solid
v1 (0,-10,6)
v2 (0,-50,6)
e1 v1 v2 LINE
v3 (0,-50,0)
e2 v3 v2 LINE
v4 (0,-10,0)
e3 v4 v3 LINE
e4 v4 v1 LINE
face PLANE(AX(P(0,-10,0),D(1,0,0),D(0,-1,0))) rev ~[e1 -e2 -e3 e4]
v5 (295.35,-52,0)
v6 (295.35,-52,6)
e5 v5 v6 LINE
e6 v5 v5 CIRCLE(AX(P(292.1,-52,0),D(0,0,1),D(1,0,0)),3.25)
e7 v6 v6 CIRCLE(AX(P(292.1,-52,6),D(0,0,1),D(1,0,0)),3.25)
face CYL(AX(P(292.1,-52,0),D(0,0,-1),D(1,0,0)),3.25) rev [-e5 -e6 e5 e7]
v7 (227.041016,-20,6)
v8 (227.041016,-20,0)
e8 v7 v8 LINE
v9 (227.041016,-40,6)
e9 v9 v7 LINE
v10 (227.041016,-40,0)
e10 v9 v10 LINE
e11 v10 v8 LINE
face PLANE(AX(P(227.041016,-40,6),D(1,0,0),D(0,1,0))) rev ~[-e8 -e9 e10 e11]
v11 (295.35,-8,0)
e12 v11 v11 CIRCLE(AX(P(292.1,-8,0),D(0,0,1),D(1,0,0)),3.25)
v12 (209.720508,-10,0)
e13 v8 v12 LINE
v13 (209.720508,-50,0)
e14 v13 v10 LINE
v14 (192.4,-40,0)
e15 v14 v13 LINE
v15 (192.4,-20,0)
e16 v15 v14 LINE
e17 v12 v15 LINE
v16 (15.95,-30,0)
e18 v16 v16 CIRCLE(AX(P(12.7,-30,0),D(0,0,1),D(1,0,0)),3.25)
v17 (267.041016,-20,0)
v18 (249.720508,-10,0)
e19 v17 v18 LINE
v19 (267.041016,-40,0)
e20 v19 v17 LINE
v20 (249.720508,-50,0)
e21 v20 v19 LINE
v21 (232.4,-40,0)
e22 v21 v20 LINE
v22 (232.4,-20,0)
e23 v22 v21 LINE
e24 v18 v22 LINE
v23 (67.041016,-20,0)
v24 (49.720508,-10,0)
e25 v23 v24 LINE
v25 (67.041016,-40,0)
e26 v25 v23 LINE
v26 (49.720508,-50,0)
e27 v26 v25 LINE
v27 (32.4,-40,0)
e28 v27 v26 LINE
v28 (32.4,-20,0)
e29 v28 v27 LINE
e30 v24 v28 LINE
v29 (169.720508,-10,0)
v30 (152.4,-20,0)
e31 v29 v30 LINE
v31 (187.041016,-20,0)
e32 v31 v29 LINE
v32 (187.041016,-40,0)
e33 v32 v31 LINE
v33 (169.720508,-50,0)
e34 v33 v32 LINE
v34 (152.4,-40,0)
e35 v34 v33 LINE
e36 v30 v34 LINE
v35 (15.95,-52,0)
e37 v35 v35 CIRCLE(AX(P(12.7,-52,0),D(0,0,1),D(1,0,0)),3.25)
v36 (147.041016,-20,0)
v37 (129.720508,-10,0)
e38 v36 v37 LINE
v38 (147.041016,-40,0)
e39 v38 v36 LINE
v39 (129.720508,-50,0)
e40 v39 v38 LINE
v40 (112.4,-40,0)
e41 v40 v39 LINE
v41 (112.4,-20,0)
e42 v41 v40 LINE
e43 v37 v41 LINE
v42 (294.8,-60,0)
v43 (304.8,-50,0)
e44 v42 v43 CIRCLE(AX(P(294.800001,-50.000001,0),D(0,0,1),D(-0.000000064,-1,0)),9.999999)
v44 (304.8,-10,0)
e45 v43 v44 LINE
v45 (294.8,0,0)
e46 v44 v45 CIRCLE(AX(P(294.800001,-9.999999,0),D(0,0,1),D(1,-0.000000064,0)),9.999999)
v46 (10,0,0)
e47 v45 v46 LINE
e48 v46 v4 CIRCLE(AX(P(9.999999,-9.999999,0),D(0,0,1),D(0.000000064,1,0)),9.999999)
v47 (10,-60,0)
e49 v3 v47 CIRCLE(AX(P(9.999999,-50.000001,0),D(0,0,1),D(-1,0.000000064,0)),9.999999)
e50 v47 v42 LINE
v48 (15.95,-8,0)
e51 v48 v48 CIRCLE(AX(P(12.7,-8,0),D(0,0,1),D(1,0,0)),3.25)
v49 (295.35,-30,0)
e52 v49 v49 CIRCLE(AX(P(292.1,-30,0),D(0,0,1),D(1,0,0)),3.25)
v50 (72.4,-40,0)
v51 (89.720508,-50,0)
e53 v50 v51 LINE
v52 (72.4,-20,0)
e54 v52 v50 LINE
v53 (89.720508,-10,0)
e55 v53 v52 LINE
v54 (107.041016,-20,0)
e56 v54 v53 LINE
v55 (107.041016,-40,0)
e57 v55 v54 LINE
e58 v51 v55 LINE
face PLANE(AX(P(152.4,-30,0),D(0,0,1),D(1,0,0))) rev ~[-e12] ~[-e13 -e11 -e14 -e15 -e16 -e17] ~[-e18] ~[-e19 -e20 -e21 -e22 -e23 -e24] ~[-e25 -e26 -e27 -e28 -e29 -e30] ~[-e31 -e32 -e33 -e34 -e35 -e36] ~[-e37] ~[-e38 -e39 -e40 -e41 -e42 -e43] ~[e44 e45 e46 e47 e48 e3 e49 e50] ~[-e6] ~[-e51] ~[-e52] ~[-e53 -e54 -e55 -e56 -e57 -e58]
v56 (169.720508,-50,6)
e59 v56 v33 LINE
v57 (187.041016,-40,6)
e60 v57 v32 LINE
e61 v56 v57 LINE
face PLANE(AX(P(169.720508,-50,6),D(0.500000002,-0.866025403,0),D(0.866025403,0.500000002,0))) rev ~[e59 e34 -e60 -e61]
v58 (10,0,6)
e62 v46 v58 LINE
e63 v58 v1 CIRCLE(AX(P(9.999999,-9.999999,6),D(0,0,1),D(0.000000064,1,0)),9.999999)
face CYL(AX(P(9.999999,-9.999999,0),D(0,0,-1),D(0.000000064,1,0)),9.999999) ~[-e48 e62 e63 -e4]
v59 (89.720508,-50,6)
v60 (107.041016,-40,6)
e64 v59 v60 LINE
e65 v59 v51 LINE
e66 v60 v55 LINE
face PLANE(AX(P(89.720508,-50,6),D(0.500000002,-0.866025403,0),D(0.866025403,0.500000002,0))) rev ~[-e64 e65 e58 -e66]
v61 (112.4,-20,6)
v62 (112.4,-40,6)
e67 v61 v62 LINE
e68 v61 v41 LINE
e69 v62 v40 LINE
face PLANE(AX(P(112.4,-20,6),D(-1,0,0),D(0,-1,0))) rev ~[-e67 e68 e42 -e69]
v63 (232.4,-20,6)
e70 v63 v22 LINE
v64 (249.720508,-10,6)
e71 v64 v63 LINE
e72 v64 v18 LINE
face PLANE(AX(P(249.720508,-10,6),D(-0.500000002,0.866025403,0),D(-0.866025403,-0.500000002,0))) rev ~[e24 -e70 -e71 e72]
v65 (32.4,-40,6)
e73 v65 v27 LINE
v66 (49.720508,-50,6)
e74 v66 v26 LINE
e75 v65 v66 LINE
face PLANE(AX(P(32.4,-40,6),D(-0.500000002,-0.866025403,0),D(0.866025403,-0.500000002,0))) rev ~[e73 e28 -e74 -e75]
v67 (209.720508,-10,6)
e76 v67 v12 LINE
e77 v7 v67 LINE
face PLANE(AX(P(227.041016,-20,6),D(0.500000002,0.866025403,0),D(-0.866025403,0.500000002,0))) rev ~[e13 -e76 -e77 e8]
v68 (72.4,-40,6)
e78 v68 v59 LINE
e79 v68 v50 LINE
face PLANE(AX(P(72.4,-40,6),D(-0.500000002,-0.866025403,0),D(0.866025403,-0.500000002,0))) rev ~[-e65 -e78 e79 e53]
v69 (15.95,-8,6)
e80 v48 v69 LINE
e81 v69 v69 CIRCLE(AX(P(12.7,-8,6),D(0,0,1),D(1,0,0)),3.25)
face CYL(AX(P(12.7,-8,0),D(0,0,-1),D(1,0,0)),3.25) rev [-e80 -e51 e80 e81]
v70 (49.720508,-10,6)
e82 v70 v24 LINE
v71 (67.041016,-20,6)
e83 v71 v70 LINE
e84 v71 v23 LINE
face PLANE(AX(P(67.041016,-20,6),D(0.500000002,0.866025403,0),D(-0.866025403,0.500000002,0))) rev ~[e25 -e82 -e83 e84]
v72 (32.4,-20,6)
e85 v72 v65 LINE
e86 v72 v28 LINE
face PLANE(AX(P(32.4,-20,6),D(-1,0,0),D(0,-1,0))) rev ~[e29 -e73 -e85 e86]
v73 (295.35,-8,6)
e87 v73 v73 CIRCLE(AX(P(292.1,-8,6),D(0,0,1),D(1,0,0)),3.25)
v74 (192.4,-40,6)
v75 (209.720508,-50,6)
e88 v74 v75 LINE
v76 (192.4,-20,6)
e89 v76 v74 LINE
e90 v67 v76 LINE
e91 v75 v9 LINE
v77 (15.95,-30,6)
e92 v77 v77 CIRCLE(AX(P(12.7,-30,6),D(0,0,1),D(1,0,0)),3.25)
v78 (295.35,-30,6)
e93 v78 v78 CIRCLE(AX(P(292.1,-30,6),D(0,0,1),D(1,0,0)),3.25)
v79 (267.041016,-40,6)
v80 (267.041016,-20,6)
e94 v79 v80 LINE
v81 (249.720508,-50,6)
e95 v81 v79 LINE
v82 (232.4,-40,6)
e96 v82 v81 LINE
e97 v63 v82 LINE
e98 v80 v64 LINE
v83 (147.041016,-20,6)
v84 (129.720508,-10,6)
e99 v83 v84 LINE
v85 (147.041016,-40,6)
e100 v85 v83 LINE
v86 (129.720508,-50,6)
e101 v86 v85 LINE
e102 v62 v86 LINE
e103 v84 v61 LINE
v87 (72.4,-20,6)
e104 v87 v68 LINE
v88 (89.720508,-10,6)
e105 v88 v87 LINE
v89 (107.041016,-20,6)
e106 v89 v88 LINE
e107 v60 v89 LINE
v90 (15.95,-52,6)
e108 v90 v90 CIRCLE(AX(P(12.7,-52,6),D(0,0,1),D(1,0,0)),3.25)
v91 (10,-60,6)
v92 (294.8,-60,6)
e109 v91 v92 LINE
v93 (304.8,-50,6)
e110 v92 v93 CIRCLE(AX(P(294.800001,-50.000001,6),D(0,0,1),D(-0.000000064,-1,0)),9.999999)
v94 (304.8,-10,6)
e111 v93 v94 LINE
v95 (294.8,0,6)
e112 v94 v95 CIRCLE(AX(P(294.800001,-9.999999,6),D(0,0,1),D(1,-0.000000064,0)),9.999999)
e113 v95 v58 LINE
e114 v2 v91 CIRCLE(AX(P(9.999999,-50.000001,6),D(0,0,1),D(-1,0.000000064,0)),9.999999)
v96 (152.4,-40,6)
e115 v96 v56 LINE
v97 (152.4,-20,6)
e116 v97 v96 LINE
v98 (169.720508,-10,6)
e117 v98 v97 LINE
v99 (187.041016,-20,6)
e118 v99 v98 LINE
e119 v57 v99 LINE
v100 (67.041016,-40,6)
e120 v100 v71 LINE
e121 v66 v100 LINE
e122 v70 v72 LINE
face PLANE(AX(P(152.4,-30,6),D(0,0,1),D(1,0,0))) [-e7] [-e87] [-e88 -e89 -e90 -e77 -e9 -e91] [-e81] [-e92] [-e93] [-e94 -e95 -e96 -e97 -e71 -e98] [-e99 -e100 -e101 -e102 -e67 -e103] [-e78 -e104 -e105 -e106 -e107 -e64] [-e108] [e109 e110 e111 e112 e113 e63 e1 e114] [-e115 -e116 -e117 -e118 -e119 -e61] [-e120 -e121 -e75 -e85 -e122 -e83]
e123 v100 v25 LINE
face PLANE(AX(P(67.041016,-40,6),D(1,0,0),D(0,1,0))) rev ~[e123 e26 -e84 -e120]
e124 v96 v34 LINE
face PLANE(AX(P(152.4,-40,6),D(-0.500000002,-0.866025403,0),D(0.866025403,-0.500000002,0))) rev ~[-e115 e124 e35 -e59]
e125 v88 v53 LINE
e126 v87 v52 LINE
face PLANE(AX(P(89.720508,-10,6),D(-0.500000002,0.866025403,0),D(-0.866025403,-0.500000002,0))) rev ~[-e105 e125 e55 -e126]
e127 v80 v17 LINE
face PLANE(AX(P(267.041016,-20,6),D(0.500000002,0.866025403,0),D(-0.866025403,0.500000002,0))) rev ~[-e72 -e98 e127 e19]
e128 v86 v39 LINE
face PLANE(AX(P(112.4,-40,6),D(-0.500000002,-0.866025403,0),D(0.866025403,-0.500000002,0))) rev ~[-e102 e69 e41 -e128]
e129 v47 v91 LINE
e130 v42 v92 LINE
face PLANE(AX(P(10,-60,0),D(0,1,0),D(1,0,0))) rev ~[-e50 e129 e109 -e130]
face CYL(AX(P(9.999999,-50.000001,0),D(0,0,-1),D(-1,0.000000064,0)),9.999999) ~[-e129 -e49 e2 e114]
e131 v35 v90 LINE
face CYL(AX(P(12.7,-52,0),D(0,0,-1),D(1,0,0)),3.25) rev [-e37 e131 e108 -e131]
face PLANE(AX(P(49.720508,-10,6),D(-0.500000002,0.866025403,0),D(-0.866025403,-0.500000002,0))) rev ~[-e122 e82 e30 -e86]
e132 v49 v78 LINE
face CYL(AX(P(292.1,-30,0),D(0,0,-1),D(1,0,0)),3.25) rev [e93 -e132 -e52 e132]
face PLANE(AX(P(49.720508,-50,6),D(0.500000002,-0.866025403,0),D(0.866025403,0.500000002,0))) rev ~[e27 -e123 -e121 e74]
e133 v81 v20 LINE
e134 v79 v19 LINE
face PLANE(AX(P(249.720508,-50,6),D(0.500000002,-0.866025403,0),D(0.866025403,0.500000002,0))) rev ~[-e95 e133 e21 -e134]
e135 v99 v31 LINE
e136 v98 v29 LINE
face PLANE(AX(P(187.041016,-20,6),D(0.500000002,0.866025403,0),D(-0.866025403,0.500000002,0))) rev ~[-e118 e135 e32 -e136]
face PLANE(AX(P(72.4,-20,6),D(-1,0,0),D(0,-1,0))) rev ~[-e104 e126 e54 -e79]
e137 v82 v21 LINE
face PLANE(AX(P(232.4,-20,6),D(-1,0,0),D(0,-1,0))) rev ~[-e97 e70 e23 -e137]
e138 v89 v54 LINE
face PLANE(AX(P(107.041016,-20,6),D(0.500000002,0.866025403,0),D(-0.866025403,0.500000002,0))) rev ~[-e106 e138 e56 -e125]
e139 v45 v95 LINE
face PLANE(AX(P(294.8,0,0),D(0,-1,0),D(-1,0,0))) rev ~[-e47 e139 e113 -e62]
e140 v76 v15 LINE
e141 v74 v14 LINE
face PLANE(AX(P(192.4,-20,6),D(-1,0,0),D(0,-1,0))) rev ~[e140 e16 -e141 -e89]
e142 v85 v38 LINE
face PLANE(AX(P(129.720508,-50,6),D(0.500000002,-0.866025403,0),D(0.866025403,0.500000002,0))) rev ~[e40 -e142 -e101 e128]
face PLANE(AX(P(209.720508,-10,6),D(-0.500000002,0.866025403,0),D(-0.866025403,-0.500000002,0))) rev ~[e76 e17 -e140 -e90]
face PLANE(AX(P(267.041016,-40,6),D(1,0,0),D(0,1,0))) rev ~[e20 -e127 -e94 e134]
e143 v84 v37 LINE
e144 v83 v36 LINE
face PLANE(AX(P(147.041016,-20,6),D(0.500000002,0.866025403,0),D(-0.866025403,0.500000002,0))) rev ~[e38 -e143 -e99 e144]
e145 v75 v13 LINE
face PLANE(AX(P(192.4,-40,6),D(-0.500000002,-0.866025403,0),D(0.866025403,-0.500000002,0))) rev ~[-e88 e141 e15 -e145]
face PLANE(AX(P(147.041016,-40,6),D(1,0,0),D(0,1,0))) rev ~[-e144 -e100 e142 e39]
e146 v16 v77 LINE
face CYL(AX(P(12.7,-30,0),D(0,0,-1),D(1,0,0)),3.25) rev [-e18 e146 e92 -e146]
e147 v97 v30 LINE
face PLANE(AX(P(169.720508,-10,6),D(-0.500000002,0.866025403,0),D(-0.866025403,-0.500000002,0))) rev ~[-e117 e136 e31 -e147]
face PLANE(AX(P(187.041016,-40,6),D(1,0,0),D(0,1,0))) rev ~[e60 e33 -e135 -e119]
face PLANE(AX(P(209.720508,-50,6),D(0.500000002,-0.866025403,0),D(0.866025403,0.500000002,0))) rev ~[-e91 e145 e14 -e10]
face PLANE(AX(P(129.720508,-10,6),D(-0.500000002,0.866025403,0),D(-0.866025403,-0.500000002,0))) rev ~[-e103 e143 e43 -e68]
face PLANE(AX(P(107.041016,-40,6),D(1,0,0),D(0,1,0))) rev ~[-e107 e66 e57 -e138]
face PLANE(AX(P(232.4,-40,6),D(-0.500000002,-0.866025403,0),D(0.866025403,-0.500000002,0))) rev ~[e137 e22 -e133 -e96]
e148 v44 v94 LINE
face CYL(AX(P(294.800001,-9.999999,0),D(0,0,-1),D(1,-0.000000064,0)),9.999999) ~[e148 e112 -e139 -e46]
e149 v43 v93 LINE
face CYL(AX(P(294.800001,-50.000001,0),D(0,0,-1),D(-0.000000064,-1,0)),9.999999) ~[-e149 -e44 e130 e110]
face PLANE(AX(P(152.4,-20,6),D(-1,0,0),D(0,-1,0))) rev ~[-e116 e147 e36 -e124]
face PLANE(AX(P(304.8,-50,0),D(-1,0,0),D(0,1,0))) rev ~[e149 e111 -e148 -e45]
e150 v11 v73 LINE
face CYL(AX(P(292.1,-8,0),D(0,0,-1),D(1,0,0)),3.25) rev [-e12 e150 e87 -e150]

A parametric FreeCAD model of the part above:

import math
import FreeCAD as App
import Part
import Sketcher
from FreeCAD import Vector
Q = App.Units.Quantity

doc = App.newDocument("Part")
body = doc.addObject("PartDesign::Body", "Body")

sketch1 = body.newObject("Sketcher::SketchObject", "Sketch")
sketch1.AttachmentSupport = (doc.getObject("XY_Plane"), [""])
sketch1.MapMode = "FlatFace"
sketch1.addGeometry([
    Part.LineSegment(Vector(0, -10, 0), Vector(0, -50, 0)),
    Part.ArcOfCircle(Part.Circle(Vector(10, -50, 0), Vector(0, 0, 1), 10), math.radians(180), math.radians(270)),
    Part.LineSegment(Vector(10, -60, 0), Vector(294.8, -60, 0)),
    Part.ArcOfCircle(Part.Circle(Vector(294.8, -50, 0), Vector(0, 0, 1), 10), math.radians(-90), math.radians(0)),
    Part.LineSegment(Vector(304.8, -50, 0), Vector(304.8, -10, 0)),
    Part.ArcOfCircle(Part.Circle(Vector(294.8, -10, 0), Vector(0, 0, 1), 10), math.radians(0), math.radians(90)),
    Part.LineSegment(Vector(294.8, 0, 0), Vector(10, 0, 0)),
    Part.ArcOfCircle(Part.Circle(Vector(10, -10, 0), Vector(0, 0, 1), 10), math.radians(90), math.radians(180)),
    Part.Circle(Vector(12.7, -52, 0), Vector(0, 0, 1), 3.2),
    Part.Circle(Vector(292.1, -52, 0), Vector(0, 0, 1), 3.2),
    Part.Circle(Vector(12.7, -30, 0), Vector(0, 0, 1), 3.2),
    Part.Circle(Vector(12.7, -8, 0), Vector(0, 0, 1), 3.2),
    Part.Circle(Vector(292.1, -30, 0), Vector(0, 0, 1), 3.2),
    Part.Circle(Vector(292.1, -8, 0), Vector(0, 0, 1), 3.2),
], False)
sketch1.addConstraint([
    Sketcher.Constraint("Tangent", 0, 2, 1, 1),
    Sketcher.Constraint("Tangent", 1, 2, 2, 1),
    Sketcher.Constraint("Tangent", 2, 2, 3, 1),
    Sketcher.Constraint("Tangent", 3, 2, 4, 1),
    Sketcher.Constraint("Tangent", 4, 2, 5, 1),
    Sketcher.Constraint("Tangent", 5, 2, 6, 1),
    Sketcher.Constraint("Tangent", 6, 2, 7, 1),
    Sketcher.Constraint("Tangent", 7, 2, 0, 1),
    Sketcher.Constraint("Vertical", 0),
    Sketcher.Constraint("Horizontal", 2),
    Sketcher.Constraint("Vertical", 4),
    Sketcher.Constraint("Horizontal", 6),
    Sketcher.Constraint("Equal", 1, 3),
    Sketcher.Constraint("Equal", 3, 5),
    Sketcher.Constraint("Equal", 5, 7),
    Sketcher.Constraint("Equal", 8, 9),
    Sketcher.Constraint("Equal", 9, 10),
    Sketcher.Constraint("Equal", 10, 11),
    Sketcher.Constraint("Equal", 11, 12),
    Sketcher.Constraint("Equal", 12, 13),
    Sketcher.Constraint("PointOnObject", 0, 2, -2),
    Sketcher.Constraint("PointOnObject", 5, 2, -1),
    Sketcher.Constraint("Horizontal", 8, 3, 9, 3),
    Sketcher.Constraint("Horizontal", 10, 3, 12, 3),
    Sketcher.Constraint("Horizontal", 11, 3, 13, 3),
    Sketcher.Constraint("Vertical", 8, 3, 10, 3),
    Sketcher.Constraint("Vertical", 10, 3, 11, 3),
    Sketcher.Constraint("Vertical", 9, 3, 12, 3),
    Sketcher.Constraint("Vertical", 12, 3, 13, 3),
    Sketcher.Constraint("Radius", 1, Q("9.999999 mm")),
    Sketcher.Constraint("Diameter", 8, Q("6.5 mm")),
    Sketcher.Constraint("DistanceY", 0, 2, 0, 1, Q("40 mm")),
    Sketcher.Constraint("DistanceX", 2, 1, 2, 2, Q("284.8 mm")),
    Sketcher.Constraint("DistanceY", 8, 3, -1, 1, Q("52 mm")),
    Sketcher.Constraint("DistanceY", 10, 3, -1, 1, Q("30 mm")),
    Sketcher.Constraint("DistanceY", 11, 3, -1, 1, Q("8 mm")),
    Sketcher.Constraint("DistanceX", -1, 1, 8, 3, Q("12.7 mm")),
    Sketcher.Constraint("DistanceX", -1, 1, 9, 3, Q("292.1 mm")),
])
pad1 = body.newObject("PartDesign::Pad", "Pad")
pad1.Profile = sketch1
pad1.Length = 6

sketch2 = body.newObject("Sketcher::SketchObject", "Sketch001")
sketch2.AttachmentSupport = (doc.getObject("XY_Plane"), [""])
sketch2.MapMode = "FlatFace"
sketch2.AttachmentOffset = App.Placement(Vector(0, 0, 6), App.Rotation())
sketch2.addGeometry([
    Part.LineSegment(Vector(187, -20, 0), Vector(170, -10, 0)),
    Part.LineSegment(Vector(170, -10, 0), Vector(152, -20, 0)),
    Part.LineSegment(Vector(152, -20, 0), Vector(152, -40, 0)),
    Part.LineSegment(Vector(152, -40, 0), Vector(170, -50, 0)),
    Part.LineSegment(Vector(170, -50, 0), Vector(187, -40, 0)),
    Part.LineSegment(Vector(187, -40, 0), Vector(187, -20, 0)),
    Part.LineSegment(Vector(227, -20, 0), Vector(210, -10, 0)),
    Part.LineSegment(Vector(210, -10, 0), Vector(192, -20, 0)),
    Part.LineSegment(Vector(192, -20, 0), Vector(192, -40, 0)),
    Part.LineSegment(Vector(192, -40, 0), Vector(210, -50, 0)),
    Part.LineSegment(Vector(210, -50, 0), Vector(227, -40, 0)),
    Part.LineSegment(Vector(227, -40, 0), Vector(227, -20, 0)),
    Part.LineSegment(Vector(267, -20, 0), Vector(250, -10, 0)),
    Part.LineSegment(Vector(250, -10, 0), Vector(232, -20, 0)),
    Part.LineSegment(Vector(232, -20, 0), Vector(232, -40, 0)),
    Part.LineSegment(Vector(232, -40, 0), Vector(250, -50, 0)),
    Part.LineSegment(Vector(250, -50, 0), Vector(267, -40, 0)),
    Part.LineSegment(Vector(267, -40, 0), Vector(267, -20, 0)),
    Part.LineSegment(Vector(67, -20, 0), Vector(50, -10, 0)),
    Part.LineSegment(Vector(50, -10, 0), Vector(32, -20, 0)),
    Part.LineSegment(Vector(32, -20, 0), Vector(32, -40, 0)),
    Part.LineSegment(Vector(32, -40, 0), Vector(50, -50, 0)),
    Part.LineSegment(Vector(50, -50, 0), Vector(67, -40, 0)),
    Part.LineSegment(Vector(67, -40, 0), Vector(67, -20, 0)),
    Part.LineSegment(Vector(107, -20, 0), Vector(90, -10, 0)),
    Part.LineSegment(Vector(90, -10, 0), Vector(72, -20, 0)),
    Part.LineSegment(Vector(72, -20, 0), Vector(72, -40, 0)),
    Part.LineSegment(Vector(72, -40, 0), Vector(90, -50, 0)),
    Part.LineSegment(Vector(90, -50, 0), Vector(107, -40, 0)),
    Part.LineSegment(Vector(107, -40, 0), Vector(107, -20, 0)),
    Part.LineSegment(Vector(147, -20, 0), Vector(130, -10, 0)),
    Part.LineSegment(Vector(130, -10, 0), Vector(112, -20, 0)),
    Part.LineSegment(Vector(112, -20, 0), Vector(112, -40, 0)),
    Part.LineSegment(Vector(112, -40, 0), Vector(130, -50, 0)),
    Part.LineSegment(Vector(130, -50, 0), Vector(147, -40, 0)),
    Part.LineSegment(Vector(147, -40, 0), Vector(147, -20, 0)),
], False)
sketch2.addConstraint([
    Sketcher.Constraint("Coincident", 0, 2, 1, 1),
    Sketcher.Constraint("Coincident", 1, 2, 2, 1),
    Sketcher.Constraint("Coincident", 2, 2, 3, 1),
    Sketcher.Constraint("Coincident", 3, 2, 4, 1),
    Sketcher.Constraint("Coincident", 4, 2, 5, 1),
    Sketcher.Constraint("Coincident", 5, 2, 0, 1),
    Sketcher.Constraint("Coincident", 6, 2, 7, 1),
    Sketcher.Constraint("Coincident", 7, 2, 8, 1),
    Sketcher.Constraint("Coincident", 8, 2, 9, 1),
    Sketcher.Constraint("Coincident", 9, 2, 10, 1),
    Sketcher.Constraint("Coincident", 10, 2, 11, 1),
    Sketcher.Constraint("Coincident", 11, 2, 6, 1),
    Sketcher.Constraint("Coincident", 12, 2, 13, 1),
    Sketcher.Constraint("Coincident", 13, 2, 14, 1),
    Sketcher.Constraint("Coincident", 14, 2, 15, 1),
    Sketcher.Constraint("Coincident", 15, 2, 16, 1),
    Sketcher.Constraint("Coincident", 16, 2, 17, 1),
    Sketcher.Constraint("Coincident", 17, 2, 12, 1),
    Sketcher.Constraint("Coincident", 18, 2, 19, 1),
    Sketcher.Constraint("Coincident", 19, 2, 20, 1),
    Sketcher.Constraint("Coincident", 20, 2, 21, 1),
    Sketcher.Constraint("Coincident", 21, 2, 22, 1),
    Sketcher.Constraint("Coincident", 22, 2, 23, 1),
    Sketcher.Constraint("Coincident", 23, 2, 18, 1),
    Sketcher.Constraint("Coincident", 24, 2, 25, 1),
    Sketcher.Constraint("Coincident", 25, 2, 26, 1),
    Sketcher.Constraint("Coincident", 26, 2, 27, 1),
    Sketcher.Constraint("Coincident", 27, 2, 28, 1),
    Sketcher.Constraint("Coincident", 28, 2, 29, 1),
    Sketcher.Constraint("Coincident", 29, 2, 24, 1),
    Sketcher.Constraint("Coincident", 30, 2, 31, 1),
    Sketcher.Constraint("Coincident", 31, 2, 32, 1),
    Sketcher.Constraint("Coincident", 32, 2, 33, 1),
    Sketcher.Constraint("Coincident", 33, 2, 34, 1),
    Sketcher.Constraint("Coincident", 34, 2, 35, 1),
    Sketcher.Constraint("Coincident", 35, 2, 30, 1),
    Sketcher.Constraint("Vertical", 2),
    Sketcher.Constraint("Vertical", 5),
    Sketcher.Constraint("Vertical", 8),
    Sketcher.Constraint("Vertical", 11),
    Sketcher.Constraint("Vertical", 14),
    Sketcher.Constraint("Vertical", 17),
    Sketcher.Constraint("Vertical", 20),
    Sketcher.Constraint("Vertical", 23),
    Sketcher.Constraint("Vertical", 26),
    Sketcher.Constraint("Vertical", 29),
    Sketcher.Constraint("Vertical", 32),
    Sketcher.Constraint("Vertical", 35),
    Sketcher.Constraint("Parallel", 0, 3),
    Sketcher.Constraint("Parallel", 1, 4),
    Sketcher.Constraint("Parallel", 3, 6),
    Sketcher.Constraint("Parallel", 4, 7),
    Sketcher.Constraint("Parallel", 6, 9),
    Sketcher.Constraint("Parallel", 7, 10),
    Sketcher.Constraint("Parallel", 9, 12),
    Sketcher.Constraint("Parallel", 10, 13),
    Sketcher.Constraint("Parallel", 12, 15),
    Sketcher.Constraint("Parallel", 13, 16),
    Sketcher.Constraint("Parallel", 15, 18),
    Sketcher.Constraint("Parallel", 16, 19),
    Sketcher.Constraint("Parallel", 18, 21),
    Sketcher.Constraint("Parallel", 19, 22),
    Sketcher.Constraint("Parallel", 21, 24),
    Sketcher.Constraint("Parallel", 22, 25),
    Sketcher.Constraint("Parallel", 24, 27),
    Sketcher.Constraint("Parallel", 25, 28),
    Sketcher.Constraint("Parallel", 27, 30),
    Sketcher.Constraint("Parallel", 28, 31),
    Sketcher.Constraint("Parallel", 30, 33),
    Sketcher.Constraint("Parallel", 31, 34),
    Sketcher.Constraint("Horizontal", 2, 2, 4, 2),
    Sketcher.Constraint("Horizontal", 1, 2, 5, 2),
    Sketcher.Constraint("Horizontal", 0, 2, 6, 2),
    Sketcher.Constraint("Horizontal", 5, 2, 7, 2),
    Sketcher.Constraint("Horizontal", 4, 2, 8, 2),
    Sketcher.Constraint("Horizontal", 3, 2, 9, 2),
    Sketcher.Constraint("Horizontal", 8, 2, 10, 2),
    Sketcher.Constraint("Horizontal", 6, 2, 12, 2),
    Sketcher.Constraint("Horizontal", 11, 2, 13, 2),
    Sketcher.Constraint("Horizontal", 10, 2, 14, 2),
    Sketcher.Constraint("Horizontal", 9, 2, 15, 2),
    Sketcher.Constraint("Horizontal", 14, 2, 16, 2),
    Sketcher.Constraint("Horizontal", 12, 2, 18, 2),
    Sketcher.Constraint("Horizontal", 17, 2, 19, 2),
    Sketcher.Constraint("Horizontal", 16, 2, 20, 2),
    Sketcher.Constraint("Horizontal", 15, 2, 21, 2),
    Sketcher.Constraint("Horizontal", 20, 2, 22, 2),
    Sketcher.Constraint("Horizontal", 18, 2, 24, 2),
    Sketcher.Constraint("Horizontal", 23, 2, 25, 2),
    Sketcher.Constraint("Horizontal", 22, 2, 26, 2),
    Sketcher.Constraint("Horizontal", 21, 2, 27, 2),
    Sketcher.Constraint("Horizontal", 26, 2, 28, 2),
    Sketcher.Constraint("Horizontal", 24, 2, 30, 2),
    Sketcher.Constraint("Horizontal", 29, 2, 31, 2),
    Sketcher.Constraint("Horizontal", 28, 2, 32, 2),
    Sketcher.Constraint("Horizontal", 27, 2, 33, 2),
    Sketcher.Constraint("Horizontal", 32, 2, 34, 2),
    Sketcher.Constraint("Vertical", 0, 2, 3, 2),
    Sketcher.Constraint("DistanceY", 2, 2, 2, 1, Q("20 mm")),
    Sketcher.Constraint("Angle", 0, Q("150 deg")),
    Sketcher.Constraint("Distance", 0, Q("20 mm")),
    Sketcher.Constraint("DistanceY", 0, 2, -1, 1, Q("10 mm")),
    Sketcher.Constraint("DistanceX", 0, 2, 6, 2, Q("40 mm")),
    Sketcher.Constraint("DistanceX", 6, 2, 12, 2, Q("40 mm")),
    Sketcher.Constraint("DistanceX", 18, 2, 0, 2, Q("120 mm")),
    Sketcher.Constraint("DistanceX", 18, 2, 24, 2, Q("40 mm")),
    Sketcher.Constraint("DistanceX", 30, 2, 0, 2, Q("40 mm")),
    Sketcher.Constraint("DistanceX", -1, 1, 1, 2, Q("152.4 mm")),
])
pocket1 = body.newObject("PartDesign::Pocket", "Pocket")
pocket1.Profile = sketch2
pocket1.Length = 6

doc.recompute()
